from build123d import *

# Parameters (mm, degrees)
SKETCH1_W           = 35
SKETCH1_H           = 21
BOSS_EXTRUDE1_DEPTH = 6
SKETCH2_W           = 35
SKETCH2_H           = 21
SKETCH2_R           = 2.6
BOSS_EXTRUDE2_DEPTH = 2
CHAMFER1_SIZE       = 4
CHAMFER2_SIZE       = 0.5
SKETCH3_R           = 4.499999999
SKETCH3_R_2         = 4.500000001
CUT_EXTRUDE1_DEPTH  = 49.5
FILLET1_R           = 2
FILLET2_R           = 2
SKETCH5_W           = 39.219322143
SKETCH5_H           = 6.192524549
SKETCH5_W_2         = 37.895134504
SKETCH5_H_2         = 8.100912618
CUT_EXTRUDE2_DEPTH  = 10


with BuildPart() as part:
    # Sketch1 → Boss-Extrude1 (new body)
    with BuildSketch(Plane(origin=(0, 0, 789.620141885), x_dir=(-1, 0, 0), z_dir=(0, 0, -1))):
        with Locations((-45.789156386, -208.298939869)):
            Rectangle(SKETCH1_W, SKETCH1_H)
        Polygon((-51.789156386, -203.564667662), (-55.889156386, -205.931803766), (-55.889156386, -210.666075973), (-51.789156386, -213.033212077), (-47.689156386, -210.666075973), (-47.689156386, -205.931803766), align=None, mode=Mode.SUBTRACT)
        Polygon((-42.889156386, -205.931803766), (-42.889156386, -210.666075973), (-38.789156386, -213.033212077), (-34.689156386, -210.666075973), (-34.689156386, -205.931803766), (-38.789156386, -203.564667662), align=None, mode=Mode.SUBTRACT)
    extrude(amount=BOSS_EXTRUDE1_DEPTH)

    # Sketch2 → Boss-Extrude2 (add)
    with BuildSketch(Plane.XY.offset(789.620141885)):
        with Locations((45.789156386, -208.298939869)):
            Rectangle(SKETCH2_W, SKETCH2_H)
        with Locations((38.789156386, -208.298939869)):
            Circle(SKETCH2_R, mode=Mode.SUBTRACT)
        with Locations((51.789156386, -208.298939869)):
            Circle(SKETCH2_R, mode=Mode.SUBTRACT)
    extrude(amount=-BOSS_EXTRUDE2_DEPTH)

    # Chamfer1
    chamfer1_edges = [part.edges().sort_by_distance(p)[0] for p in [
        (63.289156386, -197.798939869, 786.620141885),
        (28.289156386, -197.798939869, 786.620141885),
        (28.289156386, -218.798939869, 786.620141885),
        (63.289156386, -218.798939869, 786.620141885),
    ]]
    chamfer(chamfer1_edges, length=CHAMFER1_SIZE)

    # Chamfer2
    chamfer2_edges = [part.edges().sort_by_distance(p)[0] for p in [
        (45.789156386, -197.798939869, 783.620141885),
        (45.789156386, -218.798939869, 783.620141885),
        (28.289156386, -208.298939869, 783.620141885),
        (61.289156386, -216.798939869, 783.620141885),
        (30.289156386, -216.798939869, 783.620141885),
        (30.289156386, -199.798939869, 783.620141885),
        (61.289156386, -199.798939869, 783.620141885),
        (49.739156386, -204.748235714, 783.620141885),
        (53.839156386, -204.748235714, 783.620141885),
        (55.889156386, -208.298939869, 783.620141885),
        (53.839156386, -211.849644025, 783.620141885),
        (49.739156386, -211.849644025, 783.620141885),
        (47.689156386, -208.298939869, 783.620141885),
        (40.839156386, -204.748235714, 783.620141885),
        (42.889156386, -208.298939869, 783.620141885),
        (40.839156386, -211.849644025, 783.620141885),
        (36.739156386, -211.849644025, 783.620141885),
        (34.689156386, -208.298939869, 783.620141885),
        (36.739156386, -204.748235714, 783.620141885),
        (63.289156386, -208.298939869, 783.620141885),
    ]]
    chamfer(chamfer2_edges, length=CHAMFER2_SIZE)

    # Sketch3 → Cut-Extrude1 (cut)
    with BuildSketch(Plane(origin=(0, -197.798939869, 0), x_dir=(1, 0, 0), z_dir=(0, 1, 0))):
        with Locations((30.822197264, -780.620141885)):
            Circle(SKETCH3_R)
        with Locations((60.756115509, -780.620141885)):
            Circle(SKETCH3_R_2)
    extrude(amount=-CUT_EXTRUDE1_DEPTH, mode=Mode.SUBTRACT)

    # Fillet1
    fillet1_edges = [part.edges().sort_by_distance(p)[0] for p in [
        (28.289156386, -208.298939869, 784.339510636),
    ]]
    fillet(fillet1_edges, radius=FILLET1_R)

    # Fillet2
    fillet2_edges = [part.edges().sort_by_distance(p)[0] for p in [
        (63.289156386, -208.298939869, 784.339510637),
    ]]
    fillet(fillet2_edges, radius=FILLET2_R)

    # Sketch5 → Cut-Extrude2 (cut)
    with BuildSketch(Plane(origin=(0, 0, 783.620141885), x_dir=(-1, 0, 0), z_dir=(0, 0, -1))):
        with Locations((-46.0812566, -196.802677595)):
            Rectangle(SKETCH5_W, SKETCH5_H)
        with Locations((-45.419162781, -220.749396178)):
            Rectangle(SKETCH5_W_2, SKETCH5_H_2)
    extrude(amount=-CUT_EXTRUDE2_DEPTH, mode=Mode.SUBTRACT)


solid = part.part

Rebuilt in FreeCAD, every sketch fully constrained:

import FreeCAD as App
import Part
import Sketcher
from FreeCAD import Vector
Q = App.Units.Quantity


def edges_at(feature, points):
    """Names of the edges that pass closest to the given points."""
    edges = feature.Shape.Edges
    near = lambda p: min(range(len(edges)), key=lambda i: edges[i].distToShape(Part.Vertex(*p))[0])
    return sorted({f"Edge{near(p) + 1}" for p in points})


def add_polygon(sketch, points):
    """Adds a closed chain of lines whose ends are joined by coincident constraints."""
    first, n = sketch.GeometryCount, len(points)
    for a, b in zip(points, points[1:] + points[:1]):
        sketch.addGeometry(Part.LineSegment(App.Vector(*a, 0), App.Vector(*b, 0)), False)
    for i in range(n):
        sketch.addConstraint(Sketcher.Constraint("Coincident", first + i, 2, first + (i + 1) % n, 1))

doc = App.newDocument("Part")
body = doc.addObject("PartDesign::Body", "Body")

sketch1 = body.newObject("Sketcher::SketchObject", "Sketch")
sketch1.AttachmentSupport = (doc.getObject("XY_Plane"), [""])
sketch1.MapMode = "FlatFace"
sketch1.AttachmentOffset = App.Placement(Vector(0, 0, 789.620142), App.Rotation())
add_polygon(sketch1, [(63.3, -197.8), (63.3, -218.8), (28.3, -218.8), (28.3, -197.8)])
add_polygon(sketch1, [(55.9, -205.9), (51.8, -203.6), (47.7, -205.9), (47.7, -210.7), (51.8, -213), (55.9, -210.7)])
add_polygon(sketch1, [(42.9, -210.7), (42.9, -205.9), (38.8, -203.6), (34.7, -205.9), (34.7, -210.7), (38.8, -213)])
sketch1.addConstraint([
    Sketcher.Constraint("Vertical", 0),
    Sketcher.Constraint("Horizontal", 1),
    Sketcher.Constraint("Vertical", 2),
    Sketcher.Constraint("Horizontal", 3),
    Sketcher.Constraint("Vertical", 6),
    Sketcher.Constraint("Vertical", 9),
    Sketcher.Constraint("Vertical", 10),
    Sketcher.Constraint("Vertical", 13),
    Sketcher.Constraint("Parallel", 4, 7),
    Sketcher.Constraint("Parallel", 5, 8),
    Sketcher.Constraint("Parallel", 7, 11),
    Sketcher.Constraint("Parallel", 8, 12),
    Sketcher.Constraint("Parallel", 11, 14),
    Sketcher.Constraint("Parallel", 12, 15),
    Sketcher.Constraint("Horizontal", 6, 2, 8, 2),
    Sketcher.Constraint("Horizontal", 5, 2, 9, 2),
    Sketcher.Constraint("Horizontal", 9, 2, 10, 2),
    Sketcher.Constraint("Horizontal", 4, 2, 11, 2),
    Sketcher.Constraint("Horizontal", 10, 2, 12, 2),
    Sketcher.Constraint("Horizontal", 8, 2, 13, 2),
    Sketcher.Constraint("Horizontal", 7, 2, 14, 2),
    Sketcher.Constraint("Vertical", 4, 2, 7, 2),
    Sketcher.Constraint("DistanceX", 1, 2, 1, 1, Q("35 mm")),
    Sketcher.Constraint("DistanceY", 0, 2, 0, 1, Q("21 mm")),
    Sketcher.Constraint("Angle", 4, Q("150 deg")),
    Sketcher.Constraint("DistanceX", 10, 2, 9, 2, Q("13 mm")),
    Sketcher.Constraint("DistanceX", 4, 2, 3, 2, Q("11.5 mm")),
    Sketcher.Constraint("DistanceX", 5, 2, 4, 2, Q("4.1 mm")),
    Sketcher.Constraint("DistanceY", 6, 2, 6, 1, Q("4.734272 mm")),
    Sketcher.Constraint("DistanceY", 0, 2, -1, 1, Q("218.79894 mm")),
    Sketcher.Constraint("DistanceX", -1, 1, 0, 2, Q("63.289156 mm")),
    Sketcher.Constraint("DistanceY", 4, 2, -1, 1, Q("203.564668 mm")),
])
pad1 = body.newObject("PartDesign::Pad", "Pad")
pad1.Profile = sketch1
pad1.Length = 6
pad1.Reversed = True

sketch2 = body.newObject("Sketcher::SketchObject", "Sketch001")
sketch2.AttachmentSupport = (doc.getObject("XY_Plane"), [""])
sketch2.MapMode = "FlatFace"
sketch2.AttachmentOffset = App.Placement(Vector(0, 0, 789.620142), App.Rotation())
add_polygon(sketch2, [(28.3, -197.8), (28.3, -218.8), (63.3, -218.8), (63.3, -197.8)])
sketch2.addGeometry(Part.Circle(Vector(38.8, -208.3, 0), Vector(0, 0, 1), 2.6), False)
sketch2.addGeometry(Part.Circle(Vector(51.8, -208.3, 0), Vector(0, 0, 1), 2.6), False)
sketch2.addConstraint([
    Sketcher.Constraint("Vertical", 0),
    Sketcher.Constraint("Horizontal", 1),
    Sketcher.Constraint("Vertical", 2),
    Sketcher.Constraint("Horizontal", 3),
    Sketcher.Constraint("Equal", 4, 5),
    Sketcher.Constraint("Horizontal", 4, 3, 5, 3),
    Sketcher.Constraint("Diameter", 4, Q("5.2 mm")),
    Sketcher.Constraint("DistanceX", 1, 1, 1, 2, Q("35 mm")),
    Sketcher.Constraint("DistanceY", 0, 2, 0, 1, Q("21 mm")),
    Sketcher.Constraint("DistanceX", 4, 3, 5, 3, Q("13 mm")),
    Sketcher.Constraint("DistanceX", 0, 2, 4, 3, Q("10.5 mm")),
    Sketcher.Constraint("DistanceY", 0, 2, 4, 3, Q("10.5 mm")),
    Sketcher.Constraint("DistanceY", 4, 3, -1, 1, Q("208.29894 mm")),
    Sketcher.Constraint("DistanceX", -1, 1, 4, 3, Q("38.789156 mm")),
])
pad2 = body.newObject("PartDesign::Pad", "Pad001")
pad2.Profile = sketch2
pad2.Length = 2
pad2.Reversed = True
doc.recompute()

chamfer = body.newObject("PartDesign::Chamfer", "Chamfer")
chamfer.Base = (pad2, edges_at(pad2, [
    (63.289, -197.799, 786.62),
    (28.289, -197.799, 786.62),
    (28.289, -218.799, 786.62),
    (63.289, -218.799, 786.62),
]))
chamfer.Size = 4
doc.recompute()

chamfer2 = body.newObject("PartDesign::Chamfer", "Chamfer001")
chamfer2.Base = (chamfer, edges_at(chamfer, [
    (45.789, -197.799, 783.62),
    (45.789, -218.799, 783.62),
    (28.289, -208.299, 783.62),
    (61.289, -216.799, 783.62),
    (30.289, -216.799, 783.62),
    (30.289, -199.799, 783.62),
    (61.289, -199.799, 783.62),
    (49.739, -204.748, 783.62),
    (53.839, -204.748, 783.62),
    (55.889, -208.299, 783.62),
    (53.839, -211.85, 783.62),
    (49.739, -211.85, 783.62),
    (47.689, -208.299, 783.62),
    (40.839, -204.748, 783.62),
    (42.889, -208.299, 783.62),
    (40.839, -211.85, 783.62),
    (36.739, -211.85, 783.62),
    (34.689, -208.299, 783.62),
    (36.739, -204.748, 783.62),
    (63.289, -208.299, 783.62),
]))
chamfer2.Size = 0.5

sketch3 = body.newObject("Sketcher::SketchObject", "Sketch002")
sketch3.AttachmentSupport = (doc.getObject("XZ_Plane"), [""])
sketch3.MapMode = "FlatFace"
sketch3.AttachmentOffset = App.Placement(Vector(0, 0, 197.79894), App.Rotation())
sketch3.addGeometry([
    Part.Circle(Vector(30.8, 780.6, 0), Vector(0, 0, 1), 4.5),
    Part.Circle(Vector(60.8, 780.6, 0), Vector(0, 0, 1), 4.5),
], False)
sketch3.addConstraint([
    Sketcher.Constraint("Equal", 0, 1),
    Sketcher.Constraint("Horizontal", 0, 3, 1, 3),
    Sketcher.Constraint("Diameter", 0, Q("9 mm")),
    Sketcher.Constraint("DistanceY", -1, 1, 0, 3, Q("780.620142 mm")),
    Sketcher.Constraint("DistanceX", 0, 3, 1, 3, Q("29.933918 mm")),
    Sketcher.Constraint("DistanceX", -1, 1, 0, 3, Q("30.822197 mm")),
])
pocket1 = body.newObject("PartDesign::Pocket", "Pocket")
pocket1.Profile = sketch3
pocket1.Length = 49.5
pocket1.Reversed = True
doc.recompute()

fillet = body.newObject("PartDesign::Fillet", "Fillet")
fillet.Base = (pocket1, edges_at(pocket1, [(28.289, -208.299, 784.34)]))
fillet.Radius = 2
doc.recompute()

fillet2 = body.newObject("PartDesign::Fillet", "Fillet001")
fillet2.Base = (fillet, edges_at(fillet, [(63.289, -208.299, 784.34)]))
fillet2.Radius = 2

sketch4 = body.newObject("Sketcher::SketchObject", "Sketch003")
sketch4.AttachmentSupport = (doc.getObject("XY_Plane"), [""])
sketch4.MapMode = "FlatFace"
sketch4.AttachmentOffset = App.Placement(Vector(0, 0, 783.620142), App.Rotation())
add_polygon(sketch4, [(66, -194), (66, -200), (26, -200), (26, -194)])
add_polygon(sketch4, [(64, -217), (64, -225), (26, -225), (26, -217)])
sketch4.addConstraint([
    Sketcher.Constraint("Vertical", 0),
    Sketcher.Constraint("Horizontal", 1),
    Sketcher.Constraint("Vertical", 2),
    Sketcher.Constraint("Horizontal", 3),
    Sketcher.Constraint("Vertical", 4),
    Sketcher.Constraint("Horizontal", 5),
    Sketcher.Constraint("Vertical", 6),
    Sketcher.Constraint("Horizontal", 7),
    Sketcher.Constraint("Vertical", 2, 2, 5, 2),
    Sketcher.Constraint("DistanceY", 6, 2, 1, 2, Q("16.8 mm")),
    Sketcher.Constraint("DistanceX", 1, 2, 1, 1, Q("39.219322 mm")),
    Sketcher.Constraint("DistanceX", 5, 2, 5, 1, Q("37.895135 mm")),
    Sketcher.Constraint("DistanceY", 0, 2, 0, 1, Q("6.192525 mm")),
    Sketcher.Constraint("DistanceY", 4, 2, 4, 1, Q("8.100913 mm")),
    Sketcher.Constraint("DistanceY", 0, 2, -1, 1, Q("199.89894 mm")),
    Sketcher.Constraint("DistanceX", -1, 1, 4, 2, Q("64.36673 mm")),
])
pocket2 = body.newObject("PartDesign::Pocket", "Pocket001")
pocket2.Profile = sketch4
pocket2.Length = 10
pocket2.Reversed = True

doc.recompute()
